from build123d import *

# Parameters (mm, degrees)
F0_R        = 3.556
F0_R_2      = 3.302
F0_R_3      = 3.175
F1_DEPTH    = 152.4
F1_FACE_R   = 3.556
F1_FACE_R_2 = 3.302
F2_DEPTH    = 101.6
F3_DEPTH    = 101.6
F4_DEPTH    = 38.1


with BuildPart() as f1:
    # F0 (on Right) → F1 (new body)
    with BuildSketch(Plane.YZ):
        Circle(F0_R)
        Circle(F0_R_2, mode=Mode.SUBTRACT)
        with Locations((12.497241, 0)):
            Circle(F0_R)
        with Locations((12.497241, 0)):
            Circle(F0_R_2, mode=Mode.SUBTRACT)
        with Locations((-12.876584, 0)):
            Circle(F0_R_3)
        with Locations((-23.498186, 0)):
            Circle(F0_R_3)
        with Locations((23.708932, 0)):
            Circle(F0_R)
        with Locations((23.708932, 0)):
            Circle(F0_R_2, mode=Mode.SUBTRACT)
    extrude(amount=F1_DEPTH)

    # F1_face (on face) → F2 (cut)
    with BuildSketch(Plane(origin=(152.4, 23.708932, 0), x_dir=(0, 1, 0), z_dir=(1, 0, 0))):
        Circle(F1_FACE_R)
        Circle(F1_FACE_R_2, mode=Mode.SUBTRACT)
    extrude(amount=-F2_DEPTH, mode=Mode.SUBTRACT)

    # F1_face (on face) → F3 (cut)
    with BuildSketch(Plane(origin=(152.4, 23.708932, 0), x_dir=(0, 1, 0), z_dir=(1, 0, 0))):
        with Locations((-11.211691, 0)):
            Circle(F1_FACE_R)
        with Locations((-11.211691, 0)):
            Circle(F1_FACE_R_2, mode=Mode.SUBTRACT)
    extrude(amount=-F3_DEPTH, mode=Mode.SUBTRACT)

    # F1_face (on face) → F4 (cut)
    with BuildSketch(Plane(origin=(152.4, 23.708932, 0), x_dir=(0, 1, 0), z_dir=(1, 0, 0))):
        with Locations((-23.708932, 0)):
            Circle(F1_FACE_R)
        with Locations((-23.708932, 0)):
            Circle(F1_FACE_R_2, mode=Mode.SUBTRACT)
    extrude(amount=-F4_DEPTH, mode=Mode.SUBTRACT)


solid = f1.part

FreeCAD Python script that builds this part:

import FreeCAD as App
import Part
import Sketcher
Q = App.Units.Quantity

doc = App.newDocument("Part")
body = doc.addObject("PartDesign::Body", "Body")
body.AllowCompound = True

sketch1 = doc.addObject("Sketcher::SketchObject", "Sketch")
body.addObject(sketch1)
sketch1.AttachmentSupport = (doc.YZ_Plane, [""])
sketch1.MapMode = "FlatFace"
sketch1.addGeometry(Part.Circle(App.Vector(0, 0, 0), App.Vector(0, 0, 1), 3.556), False)
sketch1.addGeometry(Part.Circle(App.Vector(0, 0, 0), App.Vector(0, 0, 1), 3.302), False)
sketch1.addGeometry(Part.Circle(App.Vector(12.497241, 0, 0), App.Vector(0, 0, 1), 3.556), False)
sketch1.addGeometry(Part.Circle(App.Vector(12.497241, 0, 0), App.Vector(0, 0, 1), 3.302), False)
sketch1.addGeometry(Part.Circle(App.Vector(-12.876584, 0, 0), App.Vector(0, 0, 1), 3.175), False)
sketch1.addGeometry(Part.Circle(App.Vector(-23.498186, 0, 0), App.Vector(0, 0, 1), 3.175), False)
sketch1.addGeometry(Part.Circle(App.Vector(23.708932, 0, 0), App.Vector(0, 0, 1), 3.556), False)
sketch1.addGeometry(Part.Circle(App.Vector(23.708932, 0, 0), App.Vector(0, 0, 1), 3.302), False)
sketch1.addConstraint(Sketcher.Constraint("Coincident", 0, 3, -1, 1))
sketch1.addConstraint(Sketcher.Constraint("Coincident", 1, 3, -1, 1))
sketch1.addConstraint(Sketcher.Constraint("Coincident", 3, 3, 2, 3))
sketch1.addConstraint(Sketcher.Constraint("Coincident", 7, 3, 6, 3))
sketch1.addConstraint(Sketcher.Constraint("Equal", 0, 2))
sketch1.addConstraint(Sketcher.Constraint("Equal", 1, 3))
sketch1.addConstraint(Sketcher.Constraint("Equal", 4, 5))
sketch1.addConstraint(Sketcher.Constraint("Equal", 2, 6))
sketch1.addConstraint(Sketcher.Constraint("Equal", 3, 7))
sketch1.addConstraint(Sketcher.Constraint("PointOnObject", 2, 3, -1))
sketch1.addConstraint(Sketcher.Constraint("PointOnObject", 4, 3, -1))
sketch1.addConstraint(Sketcher.Constraint("PointOnObject", 5, 3, -1))
sketch1.addConstraint(Sketcher.Constraint("PointOnObject", 6, 3, -1))
sketch1.addConstraint(Sketcher.Constraint("Diameter", 0, Q("0.28 in")))
sketch1.addConstraint(Sketcher.Constraint("Diameter", 1, Q("0.26 in")))
sketch1.addConstraint(Sketcher.Constraint("Diameter", 4, Q("0.25 in")))
sketch1.addConstraint(Sketcher.Constraint("DistanceX", -1, 1, 2, 3, Q("12.497241 mm")))
sketch1.addConstraint(Sketcher.Constraint("DistanceX", 2, 3, 6, 3, Q("11.211691 mm")))
sketch1.addConstraint(Sketcher.Constraint("DistanceX", 4, 3, -1, 1, Q("12.876584 mm")))
sketch1.addConstraint(Sketcher.Constraint("DistanceX", 5, 3, -1, 1, Q("23.498186 mm")))
pad1 = doc.addObject("PartDesign::Pad", "Pad")
body.addObject(pad1)
pad1.Profile = sketch1
pad1.Length = Q("6 in")

sketch2 = doc.addObject("Sketcher::SketchObject", "Sketch001")
body.addObject(sketch2)
sketch2.AttachmentSupport = (doc.YZ_Plane, [""])
sketch2.MapMode = "FlatFace"
sketch2.AttachmentOffset = App.Placement(App.Vector(0, 0, 6 * 25.4), App.Rotation())
sketch2.addGeometry(Part.Circle(App.Vector(23.708932, 0, 0), App.Vector(0, 0, 1), 3.556), False)
sketch2.addGeometry(Part.Circle(App.Vector(23.708932, 0, 0), App.Vector(0, 0, 1), 3.302), False)
sketch2.addConstraint(Sketcher.Constraint("Coincident", 1, 3, 0, 3))
sketch2.addConstraint(Sketcher.Constraint("PointOnObject", 0, 3, -1))
sketch2.addConstraint(Sketcher.Constraint("Diameter", 0, Q("0.28 in")))
sketch2.addConstraint(Sketcher.Constraint("Diameter", 1, Q("0.26 in")))
sketch2.addConstraint(Sketcher.Constraint("DistanceX", -1, 1, 0, 3, Q("23.708932 mm")))
pocket1 = doc.addObject("PartDesign::Pocket", "Pocket")
body.addObject(pocket1)
pocket1.Profile = sketch2
pocket1.Length = Q("4 in")

sketch3 = doc.addObject("Sketcher::SketchObject", "Sketch002")
body.addObject(sketch3)
sketch3.AttachmentSupport = (doc.YZ_Plane, [""])
sketch3.MapMode = "FlatFace"
sketch3.AttachmentOffset = App.Placement(App.Vector(0, 0, 6 * 25.4), App.Rotation())
sketch3.addGeometry(Part.Circle(App.Vector(12.497241, 0, 0), App.Vector(0, 0, 1), 3.556), False)
sketch3.addGeometry(Part.Circle(App.Vector(12.497241, 0, 0), App.Vector(0, 0, 1), 3.302), False)
sketch3.addConstraint(Sketcher.Constraint("Coincident", 1, 3, 0, 3))
sketch3.addConstraint(Sketcher.Constraint("PointOnObject", 0, 3, -1))
sketch3.addConstraint(Sketcher.Constraint("Diameter", 0, Q("0.28 in")))
sketch3.addConstraint(Sketcher.Constraint("Diameter", 1, Q("0.26 in")))
sketch3.addConstraint(Sketcher.Constraint("DistanceX", -1, 1, 0, 3, Q("12.497241 mm")))
pocket2 = doc.addObject("PartDesign::Pocket", "Pocket001")
body.addObject(pocket2)
pocket2.Profile = sketch3
pocket2.Length = Q("4 in")

sketch4 = doc.addObject("Sketcher::SketchObject", "Sketch003")
body.addObject(sketch4)
sketch4.AttachmentSupport = (doc.YZ_Plane, [""])
sketch4.MapMode = "FlatFace"
sketch4.AttachmentOffset = App.Placement(App.Vector(0, 0, 6 * 25.4), App.Rotation())
sketch4.addGeometry(Part.Circle(App.Vector(0, 0, 0), App.Vector(0, 0, 1), 3.556), False)
sketch4.addGeometry(Part.Circle(App.Vector(0, 0, 0), App.Vector(0, 0, 1), 3.302), False)
sketch4.addConstraint(Sketcher.Constraint("Coincident", 0, 3, -1, 1))
sketch4.addConstraint(Sketcher.Constraint("Coincident", 1, 3, -1, 1))
sketch4.addConstraint(Sketcher.Constraint("Diameter", 0, Q("0.28 in")))
sketch4.addConstraint(Sketcher.Constraint("Diameter", 1, Q("0.26 in")))
pocket3 = doc.addObject("PartDesign::Pocket", "Pocket002")
body.addObject(pocket3)
pocket3.Profile = sketch4
pocket3.Length = Q("1.5 in")

doc.recompute()
